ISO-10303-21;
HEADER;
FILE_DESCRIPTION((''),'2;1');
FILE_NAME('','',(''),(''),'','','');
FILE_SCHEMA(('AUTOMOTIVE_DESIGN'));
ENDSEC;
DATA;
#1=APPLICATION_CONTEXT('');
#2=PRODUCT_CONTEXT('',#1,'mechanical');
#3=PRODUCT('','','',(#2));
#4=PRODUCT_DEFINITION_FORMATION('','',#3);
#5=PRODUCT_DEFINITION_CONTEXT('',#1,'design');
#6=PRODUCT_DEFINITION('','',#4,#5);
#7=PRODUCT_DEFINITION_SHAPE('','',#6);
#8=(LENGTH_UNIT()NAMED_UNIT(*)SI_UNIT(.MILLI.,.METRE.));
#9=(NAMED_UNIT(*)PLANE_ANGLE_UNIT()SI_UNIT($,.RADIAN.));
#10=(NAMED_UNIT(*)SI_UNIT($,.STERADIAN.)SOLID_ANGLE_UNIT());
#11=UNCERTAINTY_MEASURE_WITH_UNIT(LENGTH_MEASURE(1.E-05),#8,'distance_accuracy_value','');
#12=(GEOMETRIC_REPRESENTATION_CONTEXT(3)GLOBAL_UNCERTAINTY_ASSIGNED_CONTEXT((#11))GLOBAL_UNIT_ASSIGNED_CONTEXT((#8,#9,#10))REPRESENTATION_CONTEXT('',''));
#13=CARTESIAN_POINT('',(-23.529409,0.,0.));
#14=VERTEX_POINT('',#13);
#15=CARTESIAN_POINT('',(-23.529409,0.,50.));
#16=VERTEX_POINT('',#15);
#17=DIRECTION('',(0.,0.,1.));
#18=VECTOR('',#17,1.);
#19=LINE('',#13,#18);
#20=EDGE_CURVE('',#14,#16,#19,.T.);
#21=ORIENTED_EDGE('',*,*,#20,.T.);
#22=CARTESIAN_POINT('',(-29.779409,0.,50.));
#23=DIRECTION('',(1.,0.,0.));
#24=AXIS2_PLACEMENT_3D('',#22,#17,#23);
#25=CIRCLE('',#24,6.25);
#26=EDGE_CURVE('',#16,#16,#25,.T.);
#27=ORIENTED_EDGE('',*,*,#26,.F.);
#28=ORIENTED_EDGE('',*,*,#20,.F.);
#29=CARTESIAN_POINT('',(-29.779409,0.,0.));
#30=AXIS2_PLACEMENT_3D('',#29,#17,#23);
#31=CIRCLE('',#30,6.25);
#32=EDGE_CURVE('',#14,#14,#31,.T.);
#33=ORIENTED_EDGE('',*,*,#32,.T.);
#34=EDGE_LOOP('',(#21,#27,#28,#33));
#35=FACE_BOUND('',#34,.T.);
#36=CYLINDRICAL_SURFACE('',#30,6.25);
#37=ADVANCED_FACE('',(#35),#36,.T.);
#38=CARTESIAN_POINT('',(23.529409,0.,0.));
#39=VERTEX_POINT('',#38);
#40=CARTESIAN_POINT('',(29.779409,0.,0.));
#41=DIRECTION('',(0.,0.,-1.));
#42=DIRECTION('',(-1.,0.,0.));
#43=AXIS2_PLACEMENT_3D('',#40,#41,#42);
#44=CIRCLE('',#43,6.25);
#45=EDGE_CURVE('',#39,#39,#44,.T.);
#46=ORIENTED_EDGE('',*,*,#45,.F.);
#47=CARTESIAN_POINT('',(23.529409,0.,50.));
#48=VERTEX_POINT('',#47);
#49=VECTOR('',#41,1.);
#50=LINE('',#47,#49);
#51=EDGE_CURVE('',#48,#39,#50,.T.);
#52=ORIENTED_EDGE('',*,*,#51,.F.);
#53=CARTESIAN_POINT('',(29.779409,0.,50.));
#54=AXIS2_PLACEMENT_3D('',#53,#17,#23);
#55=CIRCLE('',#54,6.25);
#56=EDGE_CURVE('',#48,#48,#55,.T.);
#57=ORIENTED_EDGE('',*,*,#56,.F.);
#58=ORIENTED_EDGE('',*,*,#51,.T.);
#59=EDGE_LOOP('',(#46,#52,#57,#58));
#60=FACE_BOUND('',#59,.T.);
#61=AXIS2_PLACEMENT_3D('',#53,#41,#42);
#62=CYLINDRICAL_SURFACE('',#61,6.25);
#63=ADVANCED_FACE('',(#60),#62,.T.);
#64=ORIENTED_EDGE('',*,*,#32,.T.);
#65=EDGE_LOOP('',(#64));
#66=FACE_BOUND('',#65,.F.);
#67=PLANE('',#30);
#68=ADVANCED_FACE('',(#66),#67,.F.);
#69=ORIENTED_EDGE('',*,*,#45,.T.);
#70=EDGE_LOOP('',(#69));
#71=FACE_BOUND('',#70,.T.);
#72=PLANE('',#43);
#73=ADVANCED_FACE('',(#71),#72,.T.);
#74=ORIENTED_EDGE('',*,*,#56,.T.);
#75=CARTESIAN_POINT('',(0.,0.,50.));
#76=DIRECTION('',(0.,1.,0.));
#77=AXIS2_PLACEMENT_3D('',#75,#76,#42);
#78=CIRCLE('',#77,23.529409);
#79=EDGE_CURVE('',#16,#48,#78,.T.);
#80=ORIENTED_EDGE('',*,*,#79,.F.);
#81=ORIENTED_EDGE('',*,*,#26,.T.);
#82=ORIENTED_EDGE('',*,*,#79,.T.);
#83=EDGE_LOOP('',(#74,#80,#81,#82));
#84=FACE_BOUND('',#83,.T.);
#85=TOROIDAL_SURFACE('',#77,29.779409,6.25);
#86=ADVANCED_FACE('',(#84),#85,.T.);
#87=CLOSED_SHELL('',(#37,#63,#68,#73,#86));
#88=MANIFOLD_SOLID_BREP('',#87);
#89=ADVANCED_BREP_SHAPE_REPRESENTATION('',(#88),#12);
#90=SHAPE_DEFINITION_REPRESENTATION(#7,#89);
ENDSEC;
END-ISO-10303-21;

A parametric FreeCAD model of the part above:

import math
import FreeCAD as App
import Part
import Sketcher

V = App.Vector

doc = App.newDocument("Part")
body = doc.addObject("PartDesign::Body", "Body")

# Sketch on XY plane
sketch1 = body.newObject("Sketcher::SketchObject", "Sketch")
sketch1.AttachmentSupport = (doc.getObject("XY_Plane"), [""])
sketch1.MapMode = "FlatFace"
sketch1.addGeometry(Part.Circle(V(-30, 0, 0), V(0, 0, 1), 6), False)
sketch1.addConstraint(Sketcher.Constraint("PointOnObject", 0, 3, -1))
sketch1.addConstraint(Sketcher.Constraint("Diameter", 0, 12.5))
sketch1.addConstraint(Sketcher.Constraint("DistanceX", 0, 3, -1, 1, 29.779409))

# Sketch on XZ plane
sketch2 = body.newObject("Sketcher::SketchObject", "Sketch001")
sketch2.AttachmentSupport = (doc.getObject("XZ_Plane"), [""])
sketch2.MapMode = "FlatFace"
sketch2.addGeometry(Part.LineSegment(V(-30, 0, 0), V(-30, 50, 0)), False)
sketch2.addGeometry(Part.ArcOfCircle(Part.Circle(V(0, 50, 0), V(0, 0, 1), 30), math.radians(0), math.radians(180)), False)
sketch2.addGeometry(Part.LineSegment(V(30, 50, 0), V(30, 0, 0)), False)
sketch2.addConstraint(Sketcher.Constraint("Tangent", 0, 2, 1, 2))
sketch2.addConstraint(Sketcher.Constraint("Tangent", 1, 1, 2, 1))
sketch2.addConstraint(Sketcher.Constraint("Vertical", 0))
sketch2.addConstraint(Sketcher.Constraint("Vertical", 2))
sketch2.addConstraint(Sketcher.Constraint("Symmetric", 0, 1, 2, 2, -1, 1))
sketch2.addConstraint(Sketcher.Constraint("PointOnObject", 0, 1, -1))
sketch2.addConstraint(Sketcher.Constraint("Radius", 1, 30.0))
sketch2.addConstraint(Sketcher.Constraint("DistanceY", 0, 1, 0, 2, 50.0))
doc.recompute()

additivepipe = body.newObject("PartDesign::AdditivePipe", "AdditivePipe")
additivepipe.Profile = sketch1
additivepipe.Spine = (sketch2, ["Edge1", "Edge2", "Edge3"])

doc.recompute()
